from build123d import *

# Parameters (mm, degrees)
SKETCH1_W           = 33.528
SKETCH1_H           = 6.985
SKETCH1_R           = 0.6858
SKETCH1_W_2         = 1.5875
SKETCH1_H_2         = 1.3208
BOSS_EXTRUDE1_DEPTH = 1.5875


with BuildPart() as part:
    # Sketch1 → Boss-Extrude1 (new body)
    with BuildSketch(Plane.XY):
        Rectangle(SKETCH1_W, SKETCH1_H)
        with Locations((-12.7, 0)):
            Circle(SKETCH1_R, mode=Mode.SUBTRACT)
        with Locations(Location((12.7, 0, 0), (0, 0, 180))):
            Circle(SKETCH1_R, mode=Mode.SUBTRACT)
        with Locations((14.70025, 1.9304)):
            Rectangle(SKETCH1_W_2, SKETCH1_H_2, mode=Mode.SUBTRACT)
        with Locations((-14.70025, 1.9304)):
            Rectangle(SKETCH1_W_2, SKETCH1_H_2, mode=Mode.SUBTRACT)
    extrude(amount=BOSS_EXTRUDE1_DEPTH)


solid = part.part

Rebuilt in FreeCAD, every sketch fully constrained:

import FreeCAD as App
import Part
import Sketcher

V = App.Vector
Q = App.Units.Quantity


def add_polygon(sketch, points):
    """Adds a closed chain of lines whose ends are joined by coincident constraints."""
    first, n = sketch.GeometryCount, len(points)
    for a, b in zip(points, points[1:] + points[:1]):
        sketch.addGeometry(Part.LineSegment(App.Vector(*a, 0), App.Vector(*b, 0)), False)
    for i in range(n):
        sketch.addConstraint(Sketcher.Constraint("Coincident", first + i, 2, first + (i + 1) % n, 1))

doc = App.newDocument("Part")
body = doc.addObject("PartDesign::Body", "Body")

# Sketch on XY plane
sketch1 = doc.addObject("Sketcher::SketchObject", "Sketch")
body.addObject(sketch1)
sketch1.AttachmentSupport = (doc.XY_Plane, [""])
sketch1.MapMode = "FlatFace"
add_polygon(sketch1, [(-16.8, 3.5), (-16.8, -3.5), (16.8, -3.5), (16.8, 3.5)])  # lines 0-3
sketch1.addGeometry(Part.Circle(V(-12.7, 0, 0), V(0, 0, 1), 0.7), False)  # 4
sketch1.addGeometry(Part.Circle(V(12.7, 0, 0), V(0, 0, 1), 0.7), False)  # 5
add_polygon(sketch1, [(-13.9, 1.3), (-15.5, 1.3), (-15.5, 2.6), (-13.9, 2.6)])  # lines 6-9
add_polygon(sketch1, [(15.5, 1.3), (13.9, 1.3), (13.9, 2.6), (15.5, 2.6)])  # lines 10-13
sketch1.addConstraint([
    Sketcher.Constraint("Vertical", 0),
    Sketcher.Constraint("Horizontal", 1),
    Sketcher.Constraint("Vertical", 2),
    Sketcher.Constraint("Horizontal", 3),
    Sketcher.Constraint("Horizontal", 6),
    Sketcher.Constraint("Vertical", 7),
    Sketcher.Constraint("Horizontal", 8),
    Sketcher.Constraint("Vertical", 9),
    Sketcher.Constraint("Horizontal", 10),
    Sketcher.Constraint("Vertical", 11),
    Sketcher.Constraint("Horizontal", 12),
    Sketcher.Constraint("Vertical", 13),
    Sketcher.Constraint("Equal", 4, 5),
    Sketcher.Constraint("Symmetric", 4, 3, 5, 3, -1, 1),
    Sketcher.Constraint("Symmetric", 0, 2, 2, 2, -1, 1),
    Sketcher.Constraint("Symmetric", 9, 2, 10, 2, -2),
    Sketcher.Constraint("Symmetric", 7, 2, 12, 2, -2),
    Sketcher.Constraint("PointOnObject", 4, 3, -1),
    Sketcher.Constraint("Diameter", 4, Q("0.054 in")),
    Sketcher.Constraint("DistanceX", 4, 3, 5, 3, Q("1 in")),
    Sketcher.Constraint("DistanceX", 1, 1, 1, 2, Q("1.32 in")),
    Sketcher.Constraint("DistanceX", 6, 2, 6, 1, Q("0.0625 in")),
    Sketcher.Constraint("DistanceY", 0, 2, 0, 1, Q("0.275 in")),
    Sketcher.Constraint("DistanceY", 7, 1, 7, 2, Q("0.052 in")),
    Sketcher.Constraint("DistanceX", 6, 2, -1, 1, Q("0.61 in")),
    Sketcher.Constraint("DistanceY", -1, 1, 6, 2, Q("0.05 in")),
])
pad1 = doc.addObject("PartDesign::Pad", "Pad")
body.addObject(pad1)
pad1.Profile = sketch1
pad1.Length = Q("0.0625 in")

doc.recompute()
